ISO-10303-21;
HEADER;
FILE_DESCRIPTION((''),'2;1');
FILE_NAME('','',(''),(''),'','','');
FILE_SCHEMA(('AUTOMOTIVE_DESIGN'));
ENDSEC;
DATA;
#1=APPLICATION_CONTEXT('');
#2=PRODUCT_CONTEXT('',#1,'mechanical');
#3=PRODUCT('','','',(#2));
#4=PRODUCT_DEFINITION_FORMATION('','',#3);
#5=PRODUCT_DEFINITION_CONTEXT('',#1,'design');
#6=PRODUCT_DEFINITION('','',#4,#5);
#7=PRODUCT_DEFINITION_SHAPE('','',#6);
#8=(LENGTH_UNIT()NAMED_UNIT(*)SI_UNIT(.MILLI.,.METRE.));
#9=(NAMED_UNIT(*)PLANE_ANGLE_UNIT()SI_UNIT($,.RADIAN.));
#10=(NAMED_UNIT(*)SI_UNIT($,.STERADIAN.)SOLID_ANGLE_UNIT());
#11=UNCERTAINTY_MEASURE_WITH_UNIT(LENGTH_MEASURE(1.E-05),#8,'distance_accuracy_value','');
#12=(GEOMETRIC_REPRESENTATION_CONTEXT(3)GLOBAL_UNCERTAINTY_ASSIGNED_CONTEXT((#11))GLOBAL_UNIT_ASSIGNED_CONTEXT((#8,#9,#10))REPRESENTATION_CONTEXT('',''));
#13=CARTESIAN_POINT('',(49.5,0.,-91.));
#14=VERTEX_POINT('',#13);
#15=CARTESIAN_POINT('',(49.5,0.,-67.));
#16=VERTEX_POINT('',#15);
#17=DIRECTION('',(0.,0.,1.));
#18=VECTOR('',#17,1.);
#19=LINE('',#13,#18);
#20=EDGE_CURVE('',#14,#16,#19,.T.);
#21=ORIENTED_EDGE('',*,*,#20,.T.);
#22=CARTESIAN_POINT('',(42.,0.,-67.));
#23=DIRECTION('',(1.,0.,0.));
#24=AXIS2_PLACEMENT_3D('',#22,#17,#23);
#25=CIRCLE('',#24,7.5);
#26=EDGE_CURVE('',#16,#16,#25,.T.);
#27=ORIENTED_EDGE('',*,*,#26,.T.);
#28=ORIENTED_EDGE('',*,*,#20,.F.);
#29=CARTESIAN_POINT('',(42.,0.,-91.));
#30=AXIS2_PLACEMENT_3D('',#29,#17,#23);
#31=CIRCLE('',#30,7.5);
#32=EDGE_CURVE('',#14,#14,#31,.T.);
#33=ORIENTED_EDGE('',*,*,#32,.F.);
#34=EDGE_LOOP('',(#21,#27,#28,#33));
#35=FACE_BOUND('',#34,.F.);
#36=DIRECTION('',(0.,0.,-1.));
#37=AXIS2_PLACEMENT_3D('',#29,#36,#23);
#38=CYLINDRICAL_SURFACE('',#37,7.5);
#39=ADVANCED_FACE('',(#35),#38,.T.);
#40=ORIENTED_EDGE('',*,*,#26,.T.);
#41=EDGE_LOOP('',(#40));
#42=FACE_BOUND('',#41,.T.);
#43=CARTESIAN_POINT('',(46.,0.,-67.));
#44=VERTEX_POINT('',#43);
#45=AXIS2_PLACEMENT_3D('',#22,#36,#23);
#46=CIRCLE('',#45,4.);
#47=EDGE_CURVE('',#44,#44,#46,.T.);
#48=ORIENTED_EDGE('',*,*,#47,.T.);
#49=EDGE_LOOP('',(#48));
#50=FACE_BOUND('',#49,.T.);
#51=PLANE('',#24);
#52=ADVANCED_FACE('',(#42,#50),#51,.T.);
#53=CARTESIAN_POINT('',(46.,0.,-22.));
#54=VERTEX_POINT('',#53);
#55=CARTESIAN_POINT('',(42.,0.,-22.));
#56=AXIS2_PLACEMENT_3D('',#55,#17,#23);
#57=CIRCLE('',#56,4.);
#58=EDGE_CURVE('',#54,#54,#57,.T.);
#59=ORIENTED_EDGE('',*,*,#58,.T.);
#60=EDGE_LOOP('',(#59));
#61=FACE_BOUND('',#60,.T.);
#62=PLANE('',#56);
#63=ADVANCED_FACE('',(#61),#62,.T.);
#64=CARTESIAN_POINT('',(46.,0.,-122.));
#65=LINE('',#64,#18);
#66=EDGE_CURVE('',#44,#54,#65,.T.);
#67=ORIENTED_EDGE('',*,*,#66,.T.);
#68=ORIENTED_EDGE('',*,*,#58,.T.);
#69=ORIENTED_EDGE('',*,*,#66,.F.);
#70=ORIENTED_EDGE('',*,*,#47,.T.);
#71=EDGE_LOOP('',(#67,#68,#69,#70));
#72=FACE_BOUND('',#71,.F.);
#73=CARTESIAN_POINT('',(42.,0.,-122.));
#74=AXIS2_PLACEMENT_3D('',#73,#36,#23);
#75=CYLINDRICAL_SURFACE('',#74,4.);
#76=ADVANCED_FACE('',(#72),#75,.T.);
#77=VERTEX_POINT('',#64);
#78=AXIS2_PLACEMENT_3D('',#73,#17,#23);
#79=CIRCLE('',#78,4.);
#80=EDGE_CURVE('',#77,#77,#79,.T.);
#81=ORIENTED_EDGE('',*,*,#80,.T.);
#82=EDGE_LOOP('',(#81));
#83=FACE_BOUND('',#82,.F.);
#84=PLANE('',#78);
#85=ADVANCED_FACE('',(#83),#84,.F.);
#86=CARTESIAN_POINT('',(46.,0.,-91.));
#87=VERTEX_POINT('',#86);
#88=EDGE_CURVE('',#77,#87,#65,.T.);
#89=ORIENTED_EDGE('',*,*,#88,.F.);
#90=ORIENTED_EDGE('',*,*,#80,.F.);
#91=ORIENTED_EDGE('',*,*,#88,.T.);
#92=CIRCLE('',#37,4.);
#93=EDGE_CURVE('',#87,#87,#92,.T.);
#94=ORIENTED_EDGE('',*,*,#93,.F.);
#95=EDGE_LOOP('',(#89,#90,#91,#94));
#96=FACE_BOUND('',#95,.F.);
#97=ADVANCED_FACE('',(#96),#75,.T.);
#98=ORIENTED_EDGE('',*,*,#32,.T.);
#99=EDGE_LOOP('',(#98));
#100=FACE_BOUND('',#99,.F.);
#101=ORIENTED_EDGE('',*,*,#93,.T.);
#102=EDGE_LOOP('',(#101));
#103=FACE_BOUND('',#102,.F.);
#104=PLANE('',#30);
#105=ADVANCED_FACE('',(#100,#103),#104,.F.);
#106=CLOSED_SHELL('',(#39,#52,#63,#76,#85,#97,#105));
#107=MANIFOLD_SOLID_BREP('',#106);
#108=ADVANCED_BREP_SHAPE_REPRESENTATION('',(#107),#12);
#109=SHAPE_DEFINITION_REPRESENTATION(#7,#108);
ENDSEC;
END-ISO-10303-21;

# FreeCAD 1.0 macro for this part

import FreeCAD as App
import Part
import Sketcher
Q = App.Units.Quantity

doc = App.newDocument("Part")
body = doc.addObject("PartDesign::Body", "Body")

sketch1 = body.newObject("Sketcher::SketchObject", "Sketch")
sketch1.AttachmentSupport = (doc.getObject("XY_Plane"), [""])
sketch1.MapMode = "FlatFace"
sketch1.AttachmentOffset = App.Placement(App.Vector(0, 0, -122), App.Rotation())
sketch1.addGeometry(Part.Circle(App.Vector(42, 0, 0), App.Vector(0, 0, 1), 4), False)
sketch1.addConstraint(Sketcher.Constraint("PointOnObject", 0, 3, -1))
sketch1.addConstraint(Sketcher.Constraint("Diameter", 0, Q("8 mm")))
sketch1.addConstraint(Sketcher.Constraint("DistanceX", -1, 1, 0, 3, Q("42 mm")))
pad1 = body.newObject("PartDesign::Pad", "Pad")
pad1.Profile = sketch1
pad1.Length = 100
body2 = doc.addObject("PartDesign::Body", "Body001")

sketch2 = body2.newObject("Sketcher::SketchObject", "Sketch001")
sketch2.AttachmentSupport = (doc.getObject("XY_Plane001"), [""])
sketch2.MapMode = "FlatFace"
sketch2.AttachmentOffset = App.Placement(App.Vector(0, 0, -91), App.Rotation())
sketch2.addGeometry(Part.Circle(App.Vector(42, 0, 0), App.Vector(0, 0, 1), 8), False)
sketch2.addConstraint(Sketcher.Constraint("PointOnObject", 0, 3, -1))
sketch2.addConstraint(Sketcher.Constraint("Diameter", 0, Q("15 mm")))
sketch2.addConstraint(Sketcher.Constraint("DistanceX", -1, 1, 0, 3, Q("42 mm")))
pad2 = body2.newObject("PartDesign::Pad", "Pad001")
pad2.Profile = sketch2
pad2.Length = 24
doc.recompute()

boolean = body2.newObject("PartDesign::Boolean", "Boolean")
boolean.Type = "Fuse"
boolean.addObjects([body])

doc.recompute()
